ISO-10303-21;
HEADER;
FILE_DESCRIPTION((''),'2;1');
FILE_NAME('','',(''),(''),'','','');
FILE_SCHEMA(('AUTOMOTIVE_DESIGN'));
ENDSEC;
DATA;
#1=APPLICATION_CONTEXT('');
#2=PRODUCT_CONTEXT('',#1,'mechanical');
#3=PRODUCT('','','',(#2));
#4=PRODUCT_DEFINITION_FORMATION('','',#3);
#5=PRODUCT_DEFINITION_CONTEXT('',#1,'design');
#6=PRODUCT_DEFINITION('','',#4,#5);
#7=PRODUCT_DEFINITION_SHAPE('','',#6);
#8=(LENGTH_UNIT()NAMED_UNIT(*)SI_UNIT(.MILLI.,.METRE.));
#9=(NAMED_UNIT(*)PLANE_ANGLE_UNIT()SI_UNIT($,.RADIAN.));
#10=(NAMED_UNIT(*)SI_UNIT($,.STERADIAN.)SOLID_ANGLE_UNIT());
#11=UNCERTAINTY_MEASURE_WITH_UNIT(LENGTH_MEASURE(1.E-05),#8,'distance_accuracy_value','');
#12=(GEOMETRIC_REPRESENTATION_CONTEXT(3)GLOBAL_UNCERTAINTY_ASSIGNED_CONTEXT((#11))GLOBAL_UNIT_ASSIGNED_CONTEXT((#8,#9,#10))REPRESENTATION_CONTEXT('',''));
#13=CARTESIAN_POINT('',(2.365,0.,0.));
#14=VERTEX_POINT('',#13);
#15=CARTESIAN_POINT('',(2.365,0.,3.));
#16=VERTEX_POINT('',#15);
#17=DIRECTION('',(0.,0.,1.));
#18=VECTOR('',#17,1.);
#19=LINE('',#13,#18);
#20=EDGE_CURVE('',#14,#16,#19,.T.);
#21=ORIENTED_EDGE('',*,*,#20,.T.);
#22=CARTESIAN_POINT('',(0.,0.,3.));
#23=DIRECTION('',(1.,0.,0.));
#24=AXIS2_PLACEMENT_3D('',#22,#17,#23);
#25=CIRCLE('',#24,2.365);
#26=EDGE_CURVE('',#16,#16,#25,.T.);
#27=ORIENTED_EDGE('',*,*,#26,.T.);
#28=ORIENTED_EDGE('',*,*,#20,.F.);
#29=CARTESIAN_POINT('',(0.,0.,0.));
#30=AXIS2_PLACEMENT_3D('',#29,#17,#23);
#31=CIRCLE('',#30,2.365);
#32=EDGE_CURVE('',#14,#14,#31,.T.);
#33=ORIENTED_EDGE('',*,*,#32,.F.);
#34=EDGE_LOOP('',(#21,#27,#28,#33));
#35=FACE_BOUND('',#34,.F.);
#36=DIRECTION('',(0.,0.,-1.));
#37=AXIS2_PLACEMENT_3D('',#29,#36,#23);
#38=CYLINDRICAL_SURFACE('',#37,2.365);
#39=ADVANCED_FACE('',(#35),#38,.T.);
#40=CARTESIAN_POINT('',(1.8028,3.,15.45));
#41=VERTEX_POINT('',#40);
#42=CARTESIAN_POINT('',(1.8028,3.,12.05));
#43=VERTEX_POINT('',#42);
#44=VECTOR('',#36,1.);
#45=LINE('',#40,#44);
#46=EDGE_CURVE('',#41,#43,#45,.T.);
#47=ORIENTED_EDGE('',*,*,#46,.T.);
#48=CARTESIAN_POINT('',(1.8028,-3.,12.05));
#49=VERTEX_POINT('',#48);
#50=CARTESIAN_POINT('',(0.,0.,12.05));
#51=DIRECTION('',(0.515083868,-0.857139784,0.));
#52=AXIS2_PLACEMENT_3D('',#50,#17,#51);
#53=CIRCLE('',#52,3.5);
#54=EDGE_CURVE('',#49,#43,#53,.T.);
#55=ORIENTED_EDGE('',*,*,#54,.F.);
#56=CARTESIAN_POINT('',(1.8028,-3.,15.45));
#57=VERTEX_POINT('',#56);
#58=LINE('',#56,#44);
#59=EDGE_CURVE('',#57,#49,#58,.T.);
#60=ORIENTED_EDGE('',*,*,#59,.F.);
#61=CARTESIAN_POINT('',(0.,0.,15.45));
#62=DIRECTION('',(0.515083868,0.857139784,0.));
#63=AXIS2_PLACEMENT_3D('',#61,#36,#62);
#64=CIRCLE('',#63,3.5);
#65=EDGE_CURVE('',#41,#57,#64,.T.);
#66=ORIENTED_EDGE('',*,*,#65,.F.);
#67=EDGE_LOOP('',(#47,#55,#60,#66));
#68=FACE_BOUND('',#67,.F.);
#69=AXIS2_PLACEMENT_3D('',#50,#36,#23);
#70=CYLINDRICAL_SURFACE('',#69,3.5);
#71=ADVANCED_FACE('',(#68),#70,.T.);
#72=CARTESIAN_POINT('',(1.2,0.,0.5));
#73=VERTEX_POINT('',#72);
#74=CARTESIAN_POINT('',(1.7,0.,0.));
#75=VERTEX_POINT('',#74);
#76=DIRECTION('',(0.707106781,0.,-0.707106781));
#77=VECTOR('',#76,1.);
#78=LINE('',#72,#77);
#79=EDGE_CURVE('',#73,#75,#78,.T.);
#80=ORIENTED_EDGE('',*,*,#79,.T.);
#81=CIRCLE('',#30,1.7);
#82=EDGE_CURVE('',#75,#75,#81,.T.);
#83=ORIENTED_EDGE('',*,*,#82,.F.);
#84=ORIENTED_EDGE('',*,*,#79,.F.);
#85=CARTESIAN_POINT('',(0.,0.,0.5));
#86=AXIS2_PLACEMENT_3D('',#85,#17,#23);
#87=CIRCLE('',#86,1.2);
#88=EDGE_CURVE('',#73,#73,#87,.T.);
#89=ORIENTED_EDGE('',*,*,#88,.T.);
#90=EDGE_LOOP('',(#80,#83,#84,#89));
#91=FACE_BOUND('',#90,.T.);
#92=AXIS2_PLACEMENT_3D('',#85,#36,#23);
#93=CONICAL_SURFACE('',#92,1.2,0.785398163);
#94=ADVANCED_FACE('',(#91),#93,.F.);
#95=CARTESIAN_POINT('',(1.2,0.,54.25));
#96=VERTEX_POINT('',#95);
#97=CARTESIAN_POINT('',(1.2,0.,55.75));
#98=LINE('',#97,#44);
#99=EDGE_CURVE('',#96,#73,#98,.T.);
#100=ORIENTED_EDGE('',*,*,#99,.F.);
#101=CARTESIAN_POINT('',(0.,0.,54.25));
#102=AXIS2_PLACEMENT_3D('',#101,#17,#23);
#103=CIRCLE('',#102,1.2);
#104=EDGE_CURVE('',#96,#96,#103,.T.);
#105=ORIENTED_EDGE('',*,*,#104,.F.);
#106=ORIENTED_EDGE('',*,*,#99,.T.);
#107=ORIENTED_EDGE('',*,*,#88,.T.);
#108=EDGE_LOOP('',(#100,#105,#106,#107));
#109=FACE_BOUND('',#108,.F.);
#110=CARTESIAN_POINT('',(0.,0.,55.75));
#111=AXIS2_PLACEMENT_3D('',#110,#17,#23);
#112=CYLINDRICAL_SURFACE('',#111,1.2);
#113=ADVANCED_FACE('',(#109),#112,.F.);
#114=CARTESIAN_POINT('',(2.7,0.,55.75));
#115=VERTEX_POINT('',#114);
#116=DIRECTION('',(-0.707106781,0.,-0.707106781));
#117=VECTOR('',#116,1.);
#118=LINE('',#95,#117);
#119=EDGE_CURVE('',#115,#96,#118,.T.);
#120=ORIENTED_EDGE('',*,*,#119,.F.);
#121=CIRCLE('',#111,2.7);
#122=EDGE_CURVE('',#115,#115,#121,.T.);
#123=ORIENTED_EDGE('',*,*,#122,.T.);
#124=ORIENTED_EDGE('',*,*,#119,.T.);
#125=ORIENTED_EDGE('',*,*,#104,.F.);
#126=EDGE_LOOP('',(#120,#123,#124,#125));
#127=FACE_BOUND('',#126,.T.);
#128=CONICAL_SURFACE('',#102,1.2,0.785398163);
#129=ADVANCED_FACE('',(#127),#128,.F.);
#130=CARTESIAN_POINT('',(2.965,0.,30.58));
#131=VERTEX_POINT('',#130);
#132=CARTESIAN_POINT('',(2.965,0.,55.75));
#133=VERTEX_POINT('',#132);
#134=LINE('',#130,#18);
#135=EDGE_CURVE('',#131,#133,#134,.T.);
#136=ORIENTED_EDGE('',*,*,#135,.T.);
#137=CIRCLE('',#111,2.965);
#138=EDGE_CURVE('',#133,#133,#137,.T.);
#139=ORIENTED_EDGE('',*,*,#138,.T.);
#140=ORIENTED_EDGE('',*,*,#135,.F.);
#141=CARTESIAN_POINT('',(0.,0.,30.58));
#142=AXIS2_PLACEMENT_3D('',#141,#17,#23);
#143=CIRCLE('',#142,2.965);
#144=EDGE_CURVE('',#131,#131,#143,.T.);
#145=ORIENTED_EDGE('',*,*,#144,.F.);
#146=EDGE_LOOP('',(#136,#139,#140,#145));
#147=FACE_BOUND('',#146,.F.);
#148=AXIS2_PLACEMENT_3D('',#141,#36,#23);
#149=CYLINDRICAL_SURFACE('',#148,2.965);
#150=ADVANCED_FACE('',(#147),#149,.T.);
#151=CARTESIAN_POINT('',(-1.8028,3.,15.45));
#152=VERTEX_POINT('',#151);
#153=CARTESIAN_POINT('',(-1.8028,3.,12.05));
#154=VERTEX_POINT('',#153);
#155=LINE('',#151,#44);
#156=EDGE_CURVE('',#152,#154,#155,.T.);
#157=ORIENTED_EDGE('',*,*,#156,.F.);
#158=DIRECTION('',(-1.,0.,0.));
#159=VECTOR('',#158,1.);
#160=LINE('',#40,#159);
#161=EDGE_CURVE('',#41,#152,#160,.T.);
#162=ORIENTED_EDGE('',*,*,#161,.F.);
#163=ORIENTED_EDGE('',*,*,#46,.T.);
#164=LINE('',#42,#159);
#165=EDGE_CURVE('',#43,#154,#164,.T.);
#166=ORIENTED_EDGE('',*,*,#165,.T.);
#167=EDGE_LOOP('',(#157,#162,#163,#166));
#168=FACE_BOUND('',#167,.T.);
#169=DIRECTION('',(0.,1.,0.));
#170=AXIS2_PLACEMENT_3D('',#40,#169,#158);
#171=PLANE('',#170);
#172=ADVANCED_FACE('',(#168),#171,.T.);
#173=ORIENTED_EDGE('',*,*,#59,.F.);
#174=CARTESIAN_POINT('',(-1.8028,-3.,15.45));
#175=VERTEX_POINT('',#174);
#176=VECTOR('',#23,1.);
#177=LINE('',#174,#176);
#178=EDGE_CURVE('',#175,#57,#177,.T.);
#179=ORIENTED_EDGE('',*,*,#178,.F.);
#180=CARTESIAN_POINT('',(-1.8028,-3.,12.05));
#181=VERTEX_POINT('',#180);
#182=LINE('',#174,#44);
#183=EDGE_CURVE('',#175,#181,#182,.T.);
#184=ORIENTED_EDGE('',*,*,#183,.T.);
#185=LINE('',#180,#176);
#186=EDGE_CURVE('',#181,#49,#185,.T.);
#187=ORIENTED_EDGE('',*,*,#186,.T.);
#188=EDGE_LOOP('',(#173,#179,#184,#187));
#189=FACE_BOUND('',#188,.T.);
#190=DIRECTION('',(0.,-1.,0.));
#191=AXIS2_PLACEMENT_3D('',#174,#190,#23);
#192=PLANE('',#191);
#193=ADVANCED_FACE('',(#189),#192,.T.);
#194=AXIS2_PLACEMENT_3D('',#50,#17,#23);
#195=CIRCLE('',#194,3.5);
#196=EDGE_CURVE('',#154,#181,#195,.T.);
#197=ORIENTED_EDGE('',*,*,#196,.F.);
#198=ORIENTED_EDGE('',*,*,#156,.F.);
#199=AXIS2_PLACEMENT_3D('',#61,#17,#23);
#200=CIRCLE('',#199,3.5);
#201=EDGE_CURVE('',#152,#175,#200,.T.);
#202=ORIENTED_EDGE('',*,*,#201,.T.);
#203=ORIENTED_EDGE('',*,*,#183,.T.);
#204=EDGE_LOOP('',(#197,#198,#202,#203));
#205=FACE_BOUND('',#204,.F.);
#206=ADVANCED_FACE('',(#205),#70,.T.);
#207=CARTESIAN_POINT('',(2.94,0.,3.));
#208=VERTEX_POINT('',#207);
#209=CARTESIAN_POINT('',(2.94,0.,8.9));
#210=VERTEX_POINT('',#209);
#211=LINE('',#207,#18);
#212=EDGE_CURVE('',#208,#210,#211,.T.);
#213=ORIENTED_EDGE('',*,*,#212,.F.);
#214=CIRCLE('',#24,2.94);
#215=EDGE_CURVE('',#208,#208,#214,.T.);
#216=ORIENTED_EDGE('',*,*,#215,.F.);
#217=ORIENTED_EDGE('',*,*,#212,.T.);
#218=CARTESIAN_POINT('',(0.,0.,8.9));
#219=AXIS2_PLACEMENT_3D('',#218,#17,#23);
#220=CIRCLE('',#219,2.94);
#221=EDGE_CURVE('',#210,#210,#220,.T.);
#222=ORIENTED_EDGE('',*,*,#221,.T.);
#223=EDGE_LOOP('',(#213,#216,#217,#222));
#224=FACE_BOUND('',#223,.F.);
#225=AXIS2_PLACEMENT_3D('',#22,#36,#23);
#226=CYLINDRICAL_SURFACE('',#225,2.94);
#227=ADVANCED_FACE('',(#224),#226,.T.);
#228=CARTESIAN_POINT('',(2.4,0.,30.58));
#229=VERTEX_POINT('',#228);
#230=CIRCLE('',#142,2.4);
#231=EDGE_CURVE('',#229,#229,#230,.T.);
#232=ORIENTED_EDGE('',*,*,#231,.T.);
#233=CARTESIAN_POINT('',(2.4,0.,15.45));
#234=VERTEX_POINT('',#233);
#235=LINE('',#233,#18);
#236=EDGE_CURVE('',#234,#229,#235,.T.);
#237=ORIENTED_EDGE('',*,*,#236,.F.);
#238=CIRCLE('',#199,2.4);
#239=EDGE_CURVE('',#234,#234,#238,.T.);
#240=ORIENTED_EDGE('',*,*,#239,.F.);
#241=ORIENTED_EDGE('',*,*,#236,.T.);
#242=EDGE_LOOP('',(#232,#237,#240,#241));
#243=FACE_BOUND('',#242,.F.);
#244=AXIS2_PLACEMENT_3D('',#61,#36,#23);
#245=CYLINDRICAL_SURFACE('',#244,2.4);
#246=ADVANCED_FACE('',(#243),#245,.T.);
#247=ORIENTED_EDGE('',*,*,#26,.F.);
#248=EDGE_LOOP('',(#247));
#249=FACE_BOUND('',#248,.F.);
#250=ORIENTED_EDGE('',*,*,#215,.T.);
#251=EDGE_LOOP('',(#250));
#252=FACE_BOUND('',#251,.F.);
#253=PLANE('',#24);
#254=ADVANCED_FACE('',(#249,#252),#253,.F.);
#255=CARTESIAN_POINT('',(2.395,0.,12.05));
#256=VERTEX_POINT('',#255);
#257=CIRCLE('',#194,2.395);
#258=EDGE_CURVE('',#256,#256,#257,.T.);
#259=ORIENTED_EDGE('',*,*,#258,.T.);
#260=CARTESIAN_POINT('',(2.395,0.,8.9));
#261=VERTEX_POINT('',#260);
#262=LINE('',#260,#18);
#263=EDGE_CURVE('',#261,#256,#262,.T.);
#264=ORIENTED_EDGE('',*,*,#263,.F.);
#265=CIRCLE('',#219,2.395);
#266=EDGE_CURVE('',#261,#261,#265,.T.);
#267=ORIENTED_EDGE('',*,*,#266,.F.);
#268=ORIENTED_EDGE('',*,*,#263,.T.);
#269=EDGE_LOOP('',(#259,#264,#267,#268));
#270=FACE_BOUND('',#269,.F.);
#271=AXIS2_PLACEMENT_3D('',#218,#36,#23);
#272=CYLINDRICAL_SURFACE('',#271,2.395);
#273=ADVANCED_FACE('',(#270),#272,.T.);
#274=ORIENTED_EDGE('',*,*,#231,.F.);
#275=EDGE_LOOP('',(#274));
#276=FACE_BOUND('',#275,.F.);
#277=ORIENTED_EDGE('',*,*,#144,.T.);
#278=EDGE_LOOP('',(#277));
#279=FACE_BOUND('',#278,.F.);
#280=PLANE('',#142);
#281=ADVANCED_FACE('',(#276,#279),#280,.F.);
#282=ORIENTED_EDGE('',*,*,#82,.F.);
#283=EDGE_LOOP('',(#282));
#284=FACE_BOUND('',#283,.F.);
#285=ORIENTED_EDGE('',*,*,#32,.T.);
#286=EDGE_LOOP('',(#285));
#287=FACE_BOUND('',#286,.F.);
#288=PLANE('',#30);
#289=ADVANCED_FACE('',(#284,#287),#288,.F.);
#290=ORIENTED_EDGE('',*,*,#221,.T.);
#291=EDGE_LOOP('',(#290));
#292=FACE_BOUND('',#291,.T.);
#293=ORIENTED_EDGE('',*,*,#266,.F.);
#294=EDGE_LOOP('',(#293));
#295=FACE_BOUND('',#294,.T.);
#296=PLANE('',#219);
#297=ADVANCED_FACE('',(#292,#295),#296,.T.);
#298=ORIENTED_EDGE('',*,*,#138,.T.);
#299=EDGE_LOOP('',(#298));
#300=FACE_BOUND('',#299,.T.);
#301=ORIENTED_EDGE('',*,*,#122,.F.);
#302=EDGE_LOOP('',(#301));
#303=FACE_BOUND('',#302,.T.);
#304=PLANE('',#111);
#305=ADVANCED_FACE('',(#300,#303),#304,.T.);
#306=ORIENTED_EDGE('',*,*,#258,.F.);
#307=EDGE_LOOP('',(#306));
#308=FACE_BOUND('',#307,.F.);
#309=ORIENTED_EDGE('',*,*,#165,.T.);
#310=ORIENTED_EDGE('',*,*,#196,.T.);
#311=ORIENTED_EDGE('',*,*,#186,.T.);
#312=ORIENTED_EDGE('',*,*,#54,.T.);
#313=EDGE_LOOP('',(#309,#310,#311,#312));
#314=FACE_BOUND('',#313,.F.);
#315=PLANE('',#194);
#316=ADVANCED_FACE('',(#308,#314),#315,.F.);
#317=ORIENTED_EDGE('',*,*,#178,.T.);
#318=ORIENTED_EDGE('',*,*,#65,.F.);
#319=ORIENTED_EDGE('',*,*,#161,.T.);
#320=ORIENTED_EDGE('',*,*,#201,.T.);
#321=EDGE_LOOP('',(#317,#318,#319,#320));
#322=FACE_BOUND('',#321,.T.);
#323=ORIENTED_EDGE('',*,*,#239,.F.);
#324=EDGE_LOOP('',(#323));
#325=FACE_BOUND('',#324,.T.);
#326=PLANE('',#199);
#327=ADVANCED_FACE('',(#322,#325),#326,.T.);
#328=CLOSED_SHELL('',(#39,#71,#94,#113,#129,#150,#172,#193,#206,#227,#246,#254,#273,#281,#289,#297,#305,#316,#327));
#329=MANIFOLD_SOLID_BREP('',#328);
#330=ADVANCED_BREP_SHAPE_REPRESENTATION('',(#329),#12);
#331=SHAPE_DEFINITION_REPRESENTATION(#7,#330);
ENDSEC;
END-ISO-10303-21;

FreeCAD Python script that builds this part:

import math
import FreeCAD as App
import Part
import Sketcher

V = App.Vector
Q = App.Units.Quantity


def edges_at(feature, points):
    """Names of the edges that pass closest to the given points."""
    edges = feature.Shape.Edges
    near = lambda p: min(range(len(edges)), key=lambda i: edges[i].distToShape(Part.Vertex(*p))[0])
    return sorted({f"Edge{near(p) + 1}" for p in points})

doc = App.newDocument("Part")
body = doc.addObject("PartDesign::Body", "Body")

# Sketch on XY plane
sketch1 = body.newObject("Sketcher::SketchObject", "Sketch")
sketch1.AttachmentSupport = (doc.getObject("XY_Plane"), [""])
sketch1.MapMode = "FlatFace"
sketch1.addGeometry(Part.Circle(V(0, 0, 0), V(0, 0, 1), 2.4), False)
sketch1.addConstraint([
    Sketcher.Constraint("Coincident", 0, 3, -1, 1),
    Sketcher.Constraint("Diameter", 0, Q("4.73 mm")),
])
pad1 = body.newObject("PartDesign::Pad", "Pad")
pad1.Profile = sketch1
pad1.Length = 3

# Sketch on XY plane
sketch2 = body.newObject("Sketcher::SketchObject", "Sketch001")
sketch2.AttachmentSupport = (doc.getObject("XY_Plane"), [""])
sketch2.MapMode = "FlatFace"
sketch2.AttachmentOffset = App.Placement(V(0, 0, 3), App.Rotation())
sketch2.addGeometry(Part.Circle(V(0, 0, 0), V(0, 0, 1), 2.9), False)
sketch2.addConstraint([
    Sketcher.Constraint("Coincident", 0, 3, -1, 1),
    Sketcher.Constraint("Diameter", 0, Q("5.88 mm")),
])
pad2 = body.newObject("PartDesign::Pad", "Pad001")
pad2.Profile = sketch2
pad2.Length = 5.9

# Sketch on XY plane
sketch3 = body.newObject("Sketcher::SketchObject", "Sketch002")
sketch3.AttachmentSupport = (doc.getObject("XY_Plane"), [""])
sketch3.MapMode = "FlatFace"
sketch3.AttachmentOffset = App.Placement(V(0, 0, 8.9), App.Rotation())
sketch3.addGeometry(Part.Circle(V(0, 0, 0), V(0, 0, 1), 2.4), False)
sketch3.addConstraint([
    Sketcher.Constraint("Coincident", 0, 3, -1, 1),
    Sketcher.Constraint("Diameter", 0, Q("4.79 mm")),
])
pad3 = body.newObject("PartDesign::Pad", "Pad002")
pad3.Profile = sketch3
pad3.Length = 3.15

# Sketch on XY plane
sketch4 = body.newObject("Sketcher::SketchObject", "Sketch003")
sketch4.AttachmentSupport = (doc.getObject("XY_Plane"), [""])
sketch4.MapMode = "FlatFace"
sketch4.AttachmentOffset = App.Placement(V(0, 0, 12.05), App.Rotation())
sketch4.addGeometry(Part.Circle(V(0, 0, 0), V(0, 0, 1), 3.5), False)
sketch4.addConstraint([
    Sketcher.Constraint("Coincident", 0, 3, -1, 1),
    Sketcher.Constraint("Diameter", 0, Q("7 mm")),
])
pad4 = body.newObject("PartDesign::Pad", "Pad003")
pad4.Profile = sketch4
pad4.Length = 3.4

# Sketch on XY plane
sketch5 = body.newObject("Sketcher::SketchObject", "Sketch004")
sketch5.AttachmentSupport = (doc.getObject("XY_Plane"), [""])
sketch5.MapMode = "FlatFace"
sketch5.AttachmentOffset = App.Placement(V(0, 0, 15.45), App.Rotation())
sketch5.addGeometry([
    Part.LineSegment(V(1.8, -3, 0), V(-1.8, -3, 0)),
    Part.ArcOfCircle(Part.Circle(V(0, 0, 0), V(0, 0, 1), 3.5), math.radians(-121), math.radians(-59)),
    Part.ArcOfCircle(Part.Circle(V(0, 0, 0), V(0, 0, 1), 3.5), math.radians(59), math.radians(121)),
    Part.LineSegment(V(1.8, 3, 0), V(-1.8, 3, 0)),
], False)
sketch5.addConstraint([
    Sketcher.Constraint("Coincident", 0, 1, 1, 2),
    Sketcher.Constraint("Coincident", 1, 1, 0, 2),
    Sketcher.Constraint("Coincident", 2, 1, 3, 1),
    Sketcher.Constraint("Coincident", 3, 2, 2, 2),
    Sketcher.Constraint("Horizontal", 0),
    Sketcher.Constraint("Horizontal", 3),
    Sketcher.Constraint("Coincident", 1, 3, -1, 1),
    Sketcher.Constraint("Coincident", 2, 3, -1, 1),
    Sketcher.Constraint("Equal", 1, 2),
    Sketcher.Constraint("Vertical", 0, 1, 2, 1),
    Sketcher.Constraint("DistanceY", 0, 1, 2, 1, Q("6 mm")),
    Sketcher.Constraint("Radius", 1, Q("3.5 mm")),
])
pocket1 = body.newObject("PartDesign::Pocket", "Pocket")
pocket1.Profile = sketch5
pocket1.Length = 3.4

# Sketch on XY plane
sketch6 = body.newObject("Sketcher::SketchObject", "Sketch005")
sketch6.AttachmentSupport = (doc.getObject("XY_Plane"), [""])
sketch6.MapMode = "FlatFace"
sketch6.AttachmentOffset = App.Placement(V(0, 0, 15.45), App.Rotation())
sketch6.addGeometry(Part.Circle(V(0, 0, 0), V(0, 0, 1), 2.4), False)
sketch6.addConstraint([
    Sketcher.Constraint("Coincident", 0, 3, -1, 1),
    Sketcher.Constraint("Diameter", 0, Q("4.8 mm")),
])
pad5 = body.newObject("PartDesign::Pad", "Pad004")
pad5.Profile = sketch6
pad5.Length = 15.13

# Sketch on XY plane
sketch7 = body.newObject("Sketcher::SketchObject", "Sketch006")
sketch7.AttachmentSupport = (doc.getObject("XY_Plane"), [""])
sketch7.MapMode = "FlatFace"
sketch7.AttachmentOffset = App.Placement(V(0, 0, 30.58), App.Rotation())
sketch7.addGeometry(Part.Circle(V(0, 0, 0), V(0, 0, 1), 3), False)
sketch7.addConstraint([
    Sketcher.Constraint("Coincident", 0, 3, -1, 1),
    Sketcher.Constraint("Diameter", 0, Q("5.93 mm")),
])
pad6 = body.newObject("PartDesign::Pad", "Pad005")
pad6.Profile = sketch7
pad6.Length = 25.17

# Sketch on XY plane
sketch8 = body.newObject("Sketcher::SketchObject", "Sketch007")
sketch8.AttachmentSupport = (doc.getObject("XY_Plane"), [""])
sketch8.MapMode = "FlatFace"
sketch8.AttachmentOffset = App.Placement(V(0, 0, 55.75), App.Rotation())
sketch8.addGeometry(Part.Circle(V(0, 0, 0), V(0, 0, 1), 1.2), False)
sketch8.addConstraint([
    Sketcher.Constraint("Coincident", 0, 3, -1, 1),
    Sketcher.Constraint("Diameter", 0, Q("2.4 mm")),
])
pocket2 = body.newObject("PartDesign::Pocket", "Pocket001")
pocket2.Profile = sketch8
pocket2.Type = "ThroughAll"
doc.recompute()

chamfer = body.newObject("PartDesign::Chamfer", "Chamfer")
chamfer.Base = (pocket2, edges_at(pocket2, [(-1.2, 0, 55.75)]))
chamfer.Size = 1.5
doc.recompute()

chamfer2 = body.newObject("PartDesign::Chamfer", "Chamfer001")
chamfer2.Base = (chamfer, edges_at(chamfer, [(-1.2, 0, 0)]))
chamfer2.Size = 0.5

doc.recompute()
